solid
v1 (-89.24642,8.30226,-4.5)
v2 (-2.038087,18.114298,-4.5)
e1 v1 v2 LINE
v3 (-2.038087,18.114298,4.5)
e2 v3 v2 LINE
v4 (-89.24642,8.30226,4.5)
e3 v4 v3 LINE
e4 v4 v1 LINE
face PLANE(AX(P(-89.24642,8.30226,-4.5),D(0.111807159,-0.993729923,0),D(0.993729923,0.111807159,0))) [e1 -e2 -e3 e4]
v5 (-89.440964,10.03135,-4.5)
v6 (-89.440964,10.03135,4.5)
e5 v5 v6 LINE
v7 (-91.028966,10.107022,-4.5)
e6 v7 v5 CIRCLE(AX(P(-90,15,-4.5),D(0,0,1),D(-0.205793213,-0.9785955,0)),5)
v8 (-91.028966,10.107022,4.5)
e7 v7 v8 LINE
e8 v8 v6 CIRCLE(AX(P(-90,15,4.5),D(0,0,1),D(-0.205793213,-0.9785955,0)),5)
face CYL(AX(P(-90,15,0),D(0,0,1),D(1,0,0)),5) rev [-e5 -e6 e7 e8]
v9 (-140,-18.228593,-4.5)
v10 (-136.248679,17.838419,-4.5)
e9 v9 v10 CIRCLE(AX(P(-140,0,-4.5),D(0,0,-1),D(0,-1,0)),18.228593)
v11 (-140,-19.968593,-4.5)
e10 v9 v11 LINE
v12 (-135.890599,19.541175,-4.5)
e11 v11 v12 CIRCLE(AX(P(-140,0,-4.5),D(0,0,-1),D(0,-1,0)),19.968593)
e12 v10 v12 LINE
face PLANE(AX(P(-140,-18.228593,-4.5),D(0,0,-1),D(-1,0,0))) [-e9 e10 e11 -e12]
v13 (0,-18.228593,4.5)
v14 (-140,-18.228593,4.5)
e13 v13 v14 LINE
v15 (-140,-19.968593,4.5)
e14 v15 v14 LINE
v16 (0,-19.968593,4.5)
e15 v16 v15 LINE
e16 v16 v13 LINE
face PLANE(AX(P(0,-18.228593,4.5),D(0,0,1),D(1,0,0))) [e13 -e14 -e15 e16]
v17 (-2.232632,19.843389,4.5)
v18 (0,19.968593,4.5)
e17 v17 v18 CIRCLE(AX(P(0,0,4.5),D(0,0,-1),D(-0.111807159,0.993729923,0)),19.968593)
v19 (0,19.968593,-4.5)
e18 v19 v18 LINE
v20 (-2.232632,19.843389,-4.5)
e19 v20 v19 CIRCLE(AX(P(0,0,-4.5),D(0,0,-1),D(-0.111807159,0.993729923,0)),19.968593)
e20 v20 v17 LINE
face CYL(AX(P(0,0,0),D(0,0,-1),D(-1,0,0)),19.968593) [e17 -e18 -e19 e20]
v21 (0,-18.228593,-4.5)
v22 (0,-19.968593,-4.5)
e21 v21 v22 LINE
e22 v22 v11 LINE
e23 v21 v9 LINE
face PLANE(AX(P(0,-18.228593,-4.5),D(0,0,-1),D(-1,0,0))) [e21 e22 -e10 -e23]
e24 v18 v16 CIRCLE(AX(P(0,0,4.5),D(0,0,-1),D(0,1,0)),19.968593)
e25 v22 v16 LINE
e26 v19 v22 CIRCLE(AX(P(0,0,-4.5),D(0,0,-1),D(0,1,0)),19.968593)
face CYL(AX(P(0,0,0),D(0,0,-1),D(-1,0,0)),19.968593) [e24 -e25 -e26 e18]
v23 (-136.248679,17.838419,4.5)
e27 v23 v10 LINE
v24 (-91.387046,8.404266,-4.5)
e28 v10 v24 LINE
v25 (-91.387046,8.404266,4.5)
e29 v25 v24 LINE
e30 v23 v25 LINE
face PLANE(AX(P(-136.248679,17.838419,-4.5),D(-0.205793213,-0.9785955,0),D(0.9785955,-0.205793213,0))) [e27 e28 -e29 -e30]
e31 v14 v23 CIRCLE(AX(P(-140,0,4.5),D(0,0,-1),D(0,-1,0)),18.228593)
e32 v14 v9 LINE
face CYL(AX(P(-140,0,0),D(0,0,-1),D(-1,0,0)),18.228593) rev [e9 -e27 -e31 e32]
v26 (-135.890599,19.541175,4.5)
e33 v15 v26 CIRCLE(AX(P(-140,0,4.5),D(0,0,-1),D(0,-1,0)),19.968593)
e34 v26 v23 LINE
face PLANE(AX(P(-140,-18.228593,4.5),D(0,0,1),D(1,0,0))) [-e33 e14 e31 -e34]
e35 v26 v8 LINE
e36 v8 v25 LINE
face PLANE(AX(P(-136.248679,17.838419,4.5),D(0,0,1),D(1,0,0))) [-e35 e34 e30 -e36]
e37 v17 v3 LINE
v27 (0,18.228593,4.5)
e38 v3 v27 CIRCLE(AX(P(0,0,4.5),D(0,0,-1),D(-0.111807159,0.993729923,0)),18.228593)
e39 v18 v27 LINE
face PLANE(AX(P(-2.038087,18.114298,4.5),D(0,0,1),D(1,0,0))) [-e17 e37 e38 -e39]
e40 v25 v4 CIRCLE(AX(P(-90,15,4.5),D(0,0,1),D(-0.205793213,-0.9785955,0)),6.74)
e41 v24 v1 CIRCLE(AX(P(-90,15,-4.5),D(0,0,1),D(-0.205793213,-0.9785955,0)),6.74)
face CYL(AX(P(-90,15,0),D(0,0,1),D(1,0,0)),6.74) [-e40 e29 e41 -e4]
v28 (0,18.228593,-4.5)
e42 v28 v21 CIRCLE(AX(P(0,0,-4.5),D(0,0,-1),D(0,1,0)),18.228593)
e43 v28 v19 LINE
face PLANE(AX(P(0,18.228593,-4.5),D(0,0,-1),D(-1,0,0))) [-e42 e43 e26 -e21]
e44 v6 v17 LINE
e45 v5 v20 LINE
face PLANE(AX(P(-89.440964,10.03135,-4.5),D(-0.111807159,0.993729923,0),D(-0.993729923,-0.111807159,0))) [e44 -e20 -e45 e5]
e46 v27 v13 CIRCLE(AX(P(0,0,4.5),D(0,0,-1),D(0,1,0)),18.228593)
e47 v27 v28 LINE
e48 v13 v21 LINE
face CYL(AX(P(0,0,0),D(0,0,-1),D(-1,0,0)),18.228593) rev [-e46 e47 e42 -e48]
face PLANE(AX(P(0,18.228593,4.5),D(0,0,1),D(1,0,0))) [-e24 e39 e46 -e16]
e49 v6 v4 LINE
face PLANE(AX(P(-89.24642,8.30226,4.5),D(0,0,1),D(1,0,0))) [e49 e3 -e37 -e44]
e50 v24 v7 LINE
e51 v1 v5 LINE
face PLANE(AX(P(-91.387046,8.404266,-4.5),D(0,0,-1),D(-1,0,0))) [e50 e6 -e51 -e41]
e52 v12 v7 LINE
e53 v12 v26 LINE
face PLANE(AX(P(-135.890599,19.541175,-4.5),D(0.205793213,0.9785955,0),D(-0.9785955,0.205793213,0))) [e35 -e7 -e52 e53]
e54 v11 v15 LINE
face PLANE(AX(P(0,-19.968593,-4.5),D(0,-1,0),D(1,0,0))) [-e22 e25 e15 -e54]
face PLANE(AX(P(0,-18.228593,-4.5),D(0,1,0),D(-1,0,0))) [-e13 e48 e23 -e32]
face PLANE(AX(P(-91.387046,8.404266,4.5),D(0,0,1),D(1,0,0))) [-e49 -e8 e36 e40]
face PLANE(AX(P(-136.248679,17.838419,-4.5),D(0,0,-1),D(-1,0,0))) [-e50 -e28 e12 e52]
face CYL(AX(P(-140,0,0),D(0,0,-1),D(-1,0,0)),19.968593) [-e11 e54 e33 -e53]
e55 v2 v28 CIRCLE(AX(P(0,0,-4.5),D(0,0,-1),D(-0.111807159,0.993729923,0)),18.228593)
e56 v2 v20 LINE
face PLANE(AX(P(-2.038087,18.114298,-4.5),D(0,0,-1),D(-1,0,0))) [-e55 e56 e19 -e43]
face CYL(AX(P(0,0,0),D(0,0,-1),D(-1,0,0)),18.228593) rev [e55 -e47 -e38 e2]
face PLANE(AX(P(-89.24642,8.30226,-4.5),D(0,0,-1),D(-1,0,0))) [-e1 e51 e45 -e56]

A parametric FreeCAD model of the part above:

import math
import FreeCAD as App
import Part
import Sketcher

V = App.Vector
Q = App.Units.Quantity

doc = App.newDocument("Part")
body = doc.addObject("PartDesign::Body", "Body")

# Sketch on YZ plane
sketch1 = doc.addObject("Sketcher::SketchObject", "Sketch")
body.addObject(sketch1)
sketch1.AttachmentSupport = (doc.YZ_Plane, [""])
sketch1.MapMode = "FlatFace"
sketch1.addGeometry([
    Part.LineSegment(V(20, 4.5, 0), V(18.2, 4.5, 0)),
    Part.LineSegment(V(18.2, 4.5, 0), V(18.2, -4.5, 0)),
    Part.LineSegment(V(18.2, -4.5, 0), V(20, -4.5, 0)),
    Part.LineSegment(V(20, -4.5, 0), V(20, 4.5, 0)),
], False)
sketch1.addConstraint([
    Sketcher.Constraint("Coincident", 0, 2, 1, 1),
    Sketcher.Constraint("Coincident", 1, 2, 2, 1),
    Sketcher.Constraint("Coincident", 2, 2, 3, 1),
    Sketcher.Constraint("Coincident", 3, 2, 0, 1),
    Sketcher.Constraint("Horizontal", 0),
    Sketcher.Constraint("Vertical", 1),
    Sketcher.Constraint("Horizontal", 2),
    Sketcher.Constraint("Vertical", 3),
    Sketcher.Constraint("DistanceY", 1, 2, 1, 1, Q("9 mm")),
    Sketcher.Constraint("DistanceX", 0, 2, 0, 1, Q("1.74 mm")),
    Sketcher.Constraint("DistanceY", -1, 1, 0, 2, Q("4.5 mm")),
    Sketcher.Constraint("DistanceX", -1, 1, 0, 2, Q("18.228593 mm")),
])

# Sketch on XY plane
sketch2 = doc.addObject("Sketcher::SketchObject", "Sketch001")
body.addObject(sketch2)
sketch2.AttachmentSupport = (doc.XY_Plane, [""])
sketch2.MapMode = "FlatFace"
sketch2.addGeometry([
    Part.LineSegment(V(-2.1, 19, 0), V(-89.3, 9.2, 0)),  # 0
    Part.ArcOfCircle(Part.Circle(V(-90, 15, 0), V(0, 0, 1), 5.9), math.radians(-101.88), math.radians(-83.58)),  # 1
    Part.LineSegment(V(-91.2, 9.3, 0), V(-136.1, 18.7, 0)),  # 2
    Part.ArcOfCircle(Part.Circle(V(-140, 0, 0), V(0, 0, 1), 19.1), math.radians(78), math.radians(270)),  # 3
    Part.LineSegment(V(-140, -19.1, 0), V(0, -19.1, 0)),  # 4
    Part.ArcOfCircle(Part.Circle(V(0, 0, 0), V(0, 0, 1), 19.1), math.radians(-90), math.radians(96)),  # 5
], False)
sketch2.addConstraint([
    Sketcher.Constraint("Tangent", 0, 2, 1, 2),
    Sketcher.Constraint("Tangent", 1, 1, 2, 1),
    Sketcher.Constraint("Tangent", 2, 2, 3, 1),
    Sketcher.Constraint("Tangent", 3, 2, 4, 1),
    Sketcher.Constraint("Tangent", 4, 2, 5, 1),
    Sketcher.Constraint("Tangent", 5, 2, 0, 1),
    Sketcher.Constraint("Horizontal", 4),
    Sketcher.Constraint("Coincident", 5, 3, -1, 1),
    Sketcher.Constraint("Equal", 3, 5),
    Sketcher.Constraint("DistanceX", 4, 1, 4, 2, Q("140 mm")),
    Sketcher.Constraint("Radius", 1, Q("5.87 mm")),
    Sketcher.Constraint("DistanceX", 1, 3, -1, 1, Q("90 mm")),
    Sketcher.Constraint("DistanceY", -1, 1, 1, 3, Q("15 mm")),
    Sketcher.Constraint("Radius", 3, Q("19.098593 mm")),
])
doc.recompute()

additivepipe = doc.addObject("PartDesign::AdditivePipe", "AdditivePipe")
body.addObject(additivepipe)
additivepipe.Profile = sketch1
additivepipe.Spine = (sketch2, ["Edge1", "Edge2", "Edge3", "Edge4", "Edge5", "Edge6"])

doc.recompute()
